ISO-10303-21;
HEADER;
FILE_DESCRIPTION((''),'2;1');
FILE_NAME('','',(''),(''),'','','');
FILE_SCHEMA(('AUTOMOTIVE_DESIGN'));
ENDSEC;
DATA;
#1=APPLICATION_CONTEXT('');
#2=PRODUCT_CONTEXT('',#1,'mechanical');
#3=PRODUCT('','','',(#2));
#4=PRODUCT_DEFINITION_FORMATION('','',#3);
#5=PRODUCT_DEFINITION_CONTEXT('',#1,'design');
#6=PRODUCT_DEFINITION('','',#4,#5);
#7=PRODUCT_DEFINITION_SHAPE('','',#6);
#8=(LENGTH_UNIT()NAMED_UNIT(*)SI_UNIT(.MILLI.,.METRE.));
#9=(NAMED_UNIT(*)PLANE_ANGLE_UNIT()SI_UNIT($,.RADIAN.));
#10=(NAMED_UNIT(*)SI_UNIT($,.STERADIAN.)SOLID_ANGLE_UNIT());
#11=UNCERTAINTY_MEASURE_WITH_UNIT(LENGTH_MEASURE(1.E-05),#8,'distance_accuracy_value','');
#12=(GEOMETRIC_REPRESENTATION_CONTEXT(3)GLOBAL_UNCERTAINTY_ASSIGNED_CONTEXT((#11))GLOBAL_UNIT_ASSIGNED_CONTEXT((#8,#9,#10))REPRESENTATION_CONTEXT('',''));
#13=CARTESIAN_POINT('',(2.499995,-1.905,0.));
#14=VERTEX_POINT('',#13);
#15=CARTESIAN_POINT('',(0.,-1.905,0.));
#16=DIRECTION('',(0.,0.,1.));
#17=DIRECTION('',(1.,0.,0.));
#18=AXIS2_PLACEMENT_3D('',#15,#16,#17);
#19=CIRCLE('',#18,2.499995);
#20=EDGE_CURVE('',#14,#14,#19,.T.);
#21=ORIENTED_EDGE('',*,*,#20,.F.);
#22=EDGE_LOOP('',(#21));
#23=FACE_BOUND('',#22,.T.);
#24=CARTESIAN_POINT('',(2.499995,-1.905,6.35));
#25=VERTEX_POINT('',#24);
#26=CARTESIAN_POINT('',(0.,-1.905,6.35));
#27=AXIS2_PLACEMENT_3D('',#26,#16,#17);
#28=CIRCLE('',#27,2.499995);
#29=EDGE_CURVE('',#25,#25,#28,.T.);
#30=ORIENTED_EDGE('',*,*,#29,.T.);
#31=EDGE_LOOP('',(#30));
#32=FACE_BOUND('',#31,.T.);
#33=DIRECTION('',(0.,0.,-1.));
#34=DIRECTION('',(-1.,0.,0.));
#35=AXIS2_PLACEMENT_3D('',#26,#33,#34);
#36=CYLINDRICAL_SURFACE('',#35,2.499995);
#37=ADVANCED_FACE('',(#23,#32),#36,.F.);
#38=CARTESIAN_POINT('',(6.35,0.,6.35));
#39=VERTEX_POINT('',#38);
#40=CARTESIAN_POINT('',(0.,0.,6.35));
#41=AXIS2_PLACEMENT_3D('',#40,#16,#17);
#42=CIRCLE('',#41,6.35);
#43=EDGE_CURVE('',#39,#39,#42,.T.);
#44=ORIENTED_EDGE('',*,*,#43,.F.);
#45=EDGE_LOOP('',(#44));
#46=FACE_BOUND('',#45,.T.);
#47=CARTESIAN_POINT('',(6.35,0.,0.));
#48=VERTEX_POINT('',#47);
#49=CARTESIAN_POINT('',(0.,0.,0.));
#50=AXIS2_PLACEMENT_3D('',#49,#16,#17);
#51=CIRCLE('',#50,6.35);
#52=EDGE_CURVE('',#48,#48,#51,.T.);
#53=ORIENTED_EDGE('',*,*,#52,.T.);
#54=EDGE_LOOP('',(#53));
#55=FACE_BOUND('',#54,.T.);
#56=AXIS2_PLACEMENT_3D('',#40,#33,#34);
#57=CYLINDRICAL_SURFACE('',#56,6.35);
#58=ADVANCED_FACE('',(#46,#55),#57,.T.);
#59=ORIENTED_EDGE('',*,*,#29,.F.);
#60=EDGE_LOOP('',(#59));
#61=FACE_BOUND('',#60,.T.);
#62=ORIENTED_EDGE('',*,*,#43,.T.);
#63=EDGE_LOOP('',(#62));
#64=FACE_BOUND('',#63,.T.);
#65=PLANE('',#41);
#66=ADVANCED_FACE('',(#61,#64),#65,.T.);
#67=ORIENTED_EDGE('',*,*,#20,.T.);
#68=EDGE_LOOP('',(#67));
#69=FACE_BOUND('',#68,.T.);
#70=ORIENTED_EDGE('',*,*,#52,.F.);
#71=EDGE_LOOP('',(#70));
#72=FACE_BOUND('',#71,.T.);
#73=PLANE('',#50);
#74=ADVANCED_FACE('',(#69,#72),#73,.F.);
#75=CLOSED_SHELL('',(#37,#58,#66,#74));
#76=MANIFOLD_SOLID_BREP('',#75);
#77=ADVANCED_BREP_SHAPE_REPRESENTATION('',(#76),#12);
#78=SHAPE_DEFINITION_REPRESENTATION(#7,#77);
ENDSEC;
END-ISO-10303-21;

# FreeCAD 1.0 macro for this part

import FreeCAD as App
import Part
import Sketcher
Q = App.Units.Quantity

doc = App.newDocument("Part")
body = doc.addObject("PartDesign::Body", "Body")

# Sketch on XY plane
sketch1 = body.newObject("Sketcher::SketchObject", "Sketch")
sketch1.AttachmentSupport = (doc.getObject("XY_Plane"), [""])
sketch1.MapMode = "FlatFace"
sketch1.addGeometry([
    Part.Circle(App.Vector(0, 0, 0), App.Vector(0, 0, 1), 6.3),
    Part.Circle(App.Vector(0, -1.9, 0), App.Vector(0, 0, 1), 2.5),
], False)
sketch1.addConstraint([
    Sketcher.Constraint("Coincident", 0, 3, -1, 1),
    Sketcher.Constraint("PointOnObject", 1, 3, -2),
    Sketcher.Constraint("Diameter", 0, Q("0.5 in")),
    Sketcher.Constraint("Diameter", 1, 4.99999),
    Sketcher.Constraint("DistanceY", 1, 3, -1, 1, Q("0.075 in")),
])
pad1 = body.newObject("PartDesign::Pad", "Pad")
pad1.Profile = sketch1
pad1.Length = Q("0.25 in")

doc.recompute()
